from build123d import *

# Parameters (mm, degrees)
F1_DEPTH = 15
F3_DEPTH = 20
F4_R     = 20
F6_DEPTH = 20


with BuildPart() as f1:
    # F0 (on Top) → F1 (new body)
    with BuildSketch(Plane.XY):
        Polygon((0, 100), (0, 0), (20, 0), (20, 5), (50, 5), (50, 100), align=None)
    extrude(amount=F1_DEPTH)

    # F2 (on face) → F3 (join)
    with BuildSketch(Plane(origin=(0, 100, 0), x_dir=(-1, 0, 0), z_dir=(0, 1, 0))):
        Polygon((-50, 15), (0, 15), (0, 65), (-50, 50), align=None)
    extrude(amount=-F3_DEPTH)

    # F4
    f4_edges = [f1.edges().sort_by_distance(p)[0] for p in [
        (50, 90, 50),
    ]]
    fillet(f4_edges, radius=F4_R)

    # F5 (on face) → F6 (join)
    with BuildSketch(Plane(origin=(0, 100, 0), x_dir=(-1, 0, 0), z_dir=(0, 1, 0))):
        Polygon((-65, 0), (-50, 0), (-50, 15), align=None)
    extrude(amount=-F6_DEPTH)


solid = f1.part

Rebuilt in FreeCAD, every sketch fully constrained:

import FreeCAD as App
import Part
import Sketcher

V = App.Vector
Q = App.Units.Quantity


def edges_at(feature, points):
    """Names of the edges that pass closest to the given points."""
    edges = feature.Shape.Edges
    near = lambda p: min(range(len(edges)), key=lambda i: edges[i].distToShape(Part.Vertex(*p))[0])
    return sorted({f"Edge{near(p) + 1}" for p in points})

doc = App.newDocument("Part")
body = doc.addObject("PartDesign::Body", "Body")

# Sketch on XY plane
sketch1 = doc.addObject("Sketcher::SketchObject", "Sketch")
body.addObject(sketch1)
sketch1.AttachmentSupport = (doc.XY_Plane, [""])
sketch1.MapMode = "FlatFace"
sketch1.addGeometry([
    Part.LineSegment(V(0, 100, 0), V(0, 0, 0)),  # 0
    Part.LineSegment(V(0, 0, 0), V(20, 0, 0)),  # 1
    Part.LineSegment(V(20, 0, 0), V(20, 5, 0)),  # 2
    Part.LineSegment(V(20, 5, 0), V(50, 5, 0)),  # 3
    Part.LineSegment(V(50, 5, 0), V(50, 100, 0)),  # 4
    Part.LineSegment(V(50, 100, 0), V(0, 100, 0)),  # 5
], False)
sketch1.addConstraint([
    Sketcher.Constraint("Coincident", 0, 2, 1, 1),
    Sketcher.Constraint("Coincident", 1, 2, 2, 1),
    Sketcher.Constraint("Coincident", 2, 2, 3, 1),
    Sketcher.Constraint("Coincident", 3, 2, 4, 1),
    Sketcher.Constraint("Coincident", 4, 2, 5, 1),
    Sketcher.Constraint("Coincident", 5, 2, 0, 1),
    Sketcher.Constraint("Vertical", 0),
    Sketcher.Constraint("Horizontal", 1),
    Sketcher.Constraint("Vertical", 2),
    Sketcher.Constraint("Horizontal", 3),
    Sketcher.Constraint("Vertical", 4),
    Sketcher.Constraint("Horizontal", 5),
    Sketcher.Constraint("Coincident", 0, 2, -1, 1),
    Sketcher.Constraint("DistanceX", 1, 1, 1, 2, Q("20 mm")),
    Sketcher.Constraint("DistanceX", 3, 1, 3, 2, Q("30 mm")),
    Sketcher.Constraint("DistanceY", 0, 2, 0, 1, Q("100 mm")),
    Sketcher.Constraint("DistanceY", 2, 1, 2, 2, Q("5 mm")),
])
pad1 = doc.addObject("PartDesign::Pad", "Pad")
body.addObject(pad1)
pad1.Profile = sketch1
pad1.Length = 15

# Sketch on XZ plane
sketch2 = doc.addObject("Sketcher::SketchObject", "Sketch001")
body.addObject(sketch2)
sketch2.AttachmentSupport = (doc.XZ_Plane, [""])
sketch2.MapMode = "FlatFace"
sketch2.AttachmentOffset = App.Placement(V(0, 0, -100), App.Rotation())
sketch2.addGeometry([
    Part.LineSegment(V(50, 15, 0), V(0, 15, 0)),
    Part.LineSegment(V(0, 15, 0), V(0, 65, 0)),
    Part.LineSegment(V(0, 65, 0), V(50, 50, 0)),
    Part.LineSegment(V(50, 50, 0), V(50, 15, 0)),
], False)
sketch2.addConstraint([
    Sketcher.Constraint("Coincident", 0, 2, 1, 1),
    Sketcher.Constraint("Coincident", 1, 2, 2, 1),
    Sketcher.Constraint("Coincident", 2, 2, 3, 1),
    Sketcher.Constraint("Coincident", 3, 2, 0, 1),
    Sketcher.Constraint("Horizontal", 0),
    Sketcher.Constraint("Vertical", 1),
    Sketcher.Constraint("Vertical", 3),
    Sketcher.Constraint("PointOnObject", 0, 2, -2),
    Sketcher.Constraint("Equal", 0, 1),
    Sketcher.Constraint("DistanceX", 0, 2, 0, 1, Q("50 mm")),
    Sketcher.Constraint("DistanceY", 3, 2, 3, 1, Q("35 mm")),
    Sketcher.Constraint("DistanceY", -1, 1, 0, 2, Q("15 mm")),
])
pad2 = doc.addObject("PartDesign::Pad", "Pad001")
body.addObject(pad2)
pad2.Profile = sketch2
pad2.Length = 20
doc.recompute()

fillet = doc.addObject("PartDesign::Fillet", "Fillet")
body.addObject(fillet)
fillet.Base = (pad2, edges_at(pad2, [(50, 90, 50)]))
fillet.Radius = 20

# Sketch on XZ plane
sketch3 = doc.addObject("Sketcher::SketchObject", "Sketch002")
body.addObject(sketch3)
sketch3.AttachmentSupport = (doc.XZ_Plane, [""])
sketch3.MapMode = "FlatFace"
sketch3.AttachmentOffset = App.Placement(V(0, 0, -100), App.Rotation())
sketch3.addGeometry([
    Part.LineSegment(V(65, 0, 0), V(50, 0, 0)),
    Part.LineSegment(V(50, 0, 0), V(50, 15, 0)),
    Part.LineSegment(V(50, 15, 0), V(65, 0, 0)),
], False)
sketch3.addConstraint([
    Sketcher.Constraint("Coincident", 0, 2, 1, 1),
    Sketcher.Constraint("Coincident", 1, 2, 2, 1),
    Sketcher.Constraint("Coincident", 2, 2, 0, 1),
    Sketcher.Constraint("Horizontal", 0),
    Sketcher.Constraint("Vertical", 1),
    Sketcher.Constraint("PointOnObject", 0, 2, -1),
    Sketcher.Constraint("Equal", 0, 1),
    Sketcher.Constraint("DistanceX", 0, 2, 0, 1, Q("15 mm")),
    Sketcher.Constraint("DistanceX", -1, 1, 0, 2, Q("50 mm")),
])
pad3 = doc.addObject("PartDesign::Pad", "Pad002")
body.addObject(pad3)
pad3.Profile = sketch3
pad3.Length = 20

doc.recompute()
